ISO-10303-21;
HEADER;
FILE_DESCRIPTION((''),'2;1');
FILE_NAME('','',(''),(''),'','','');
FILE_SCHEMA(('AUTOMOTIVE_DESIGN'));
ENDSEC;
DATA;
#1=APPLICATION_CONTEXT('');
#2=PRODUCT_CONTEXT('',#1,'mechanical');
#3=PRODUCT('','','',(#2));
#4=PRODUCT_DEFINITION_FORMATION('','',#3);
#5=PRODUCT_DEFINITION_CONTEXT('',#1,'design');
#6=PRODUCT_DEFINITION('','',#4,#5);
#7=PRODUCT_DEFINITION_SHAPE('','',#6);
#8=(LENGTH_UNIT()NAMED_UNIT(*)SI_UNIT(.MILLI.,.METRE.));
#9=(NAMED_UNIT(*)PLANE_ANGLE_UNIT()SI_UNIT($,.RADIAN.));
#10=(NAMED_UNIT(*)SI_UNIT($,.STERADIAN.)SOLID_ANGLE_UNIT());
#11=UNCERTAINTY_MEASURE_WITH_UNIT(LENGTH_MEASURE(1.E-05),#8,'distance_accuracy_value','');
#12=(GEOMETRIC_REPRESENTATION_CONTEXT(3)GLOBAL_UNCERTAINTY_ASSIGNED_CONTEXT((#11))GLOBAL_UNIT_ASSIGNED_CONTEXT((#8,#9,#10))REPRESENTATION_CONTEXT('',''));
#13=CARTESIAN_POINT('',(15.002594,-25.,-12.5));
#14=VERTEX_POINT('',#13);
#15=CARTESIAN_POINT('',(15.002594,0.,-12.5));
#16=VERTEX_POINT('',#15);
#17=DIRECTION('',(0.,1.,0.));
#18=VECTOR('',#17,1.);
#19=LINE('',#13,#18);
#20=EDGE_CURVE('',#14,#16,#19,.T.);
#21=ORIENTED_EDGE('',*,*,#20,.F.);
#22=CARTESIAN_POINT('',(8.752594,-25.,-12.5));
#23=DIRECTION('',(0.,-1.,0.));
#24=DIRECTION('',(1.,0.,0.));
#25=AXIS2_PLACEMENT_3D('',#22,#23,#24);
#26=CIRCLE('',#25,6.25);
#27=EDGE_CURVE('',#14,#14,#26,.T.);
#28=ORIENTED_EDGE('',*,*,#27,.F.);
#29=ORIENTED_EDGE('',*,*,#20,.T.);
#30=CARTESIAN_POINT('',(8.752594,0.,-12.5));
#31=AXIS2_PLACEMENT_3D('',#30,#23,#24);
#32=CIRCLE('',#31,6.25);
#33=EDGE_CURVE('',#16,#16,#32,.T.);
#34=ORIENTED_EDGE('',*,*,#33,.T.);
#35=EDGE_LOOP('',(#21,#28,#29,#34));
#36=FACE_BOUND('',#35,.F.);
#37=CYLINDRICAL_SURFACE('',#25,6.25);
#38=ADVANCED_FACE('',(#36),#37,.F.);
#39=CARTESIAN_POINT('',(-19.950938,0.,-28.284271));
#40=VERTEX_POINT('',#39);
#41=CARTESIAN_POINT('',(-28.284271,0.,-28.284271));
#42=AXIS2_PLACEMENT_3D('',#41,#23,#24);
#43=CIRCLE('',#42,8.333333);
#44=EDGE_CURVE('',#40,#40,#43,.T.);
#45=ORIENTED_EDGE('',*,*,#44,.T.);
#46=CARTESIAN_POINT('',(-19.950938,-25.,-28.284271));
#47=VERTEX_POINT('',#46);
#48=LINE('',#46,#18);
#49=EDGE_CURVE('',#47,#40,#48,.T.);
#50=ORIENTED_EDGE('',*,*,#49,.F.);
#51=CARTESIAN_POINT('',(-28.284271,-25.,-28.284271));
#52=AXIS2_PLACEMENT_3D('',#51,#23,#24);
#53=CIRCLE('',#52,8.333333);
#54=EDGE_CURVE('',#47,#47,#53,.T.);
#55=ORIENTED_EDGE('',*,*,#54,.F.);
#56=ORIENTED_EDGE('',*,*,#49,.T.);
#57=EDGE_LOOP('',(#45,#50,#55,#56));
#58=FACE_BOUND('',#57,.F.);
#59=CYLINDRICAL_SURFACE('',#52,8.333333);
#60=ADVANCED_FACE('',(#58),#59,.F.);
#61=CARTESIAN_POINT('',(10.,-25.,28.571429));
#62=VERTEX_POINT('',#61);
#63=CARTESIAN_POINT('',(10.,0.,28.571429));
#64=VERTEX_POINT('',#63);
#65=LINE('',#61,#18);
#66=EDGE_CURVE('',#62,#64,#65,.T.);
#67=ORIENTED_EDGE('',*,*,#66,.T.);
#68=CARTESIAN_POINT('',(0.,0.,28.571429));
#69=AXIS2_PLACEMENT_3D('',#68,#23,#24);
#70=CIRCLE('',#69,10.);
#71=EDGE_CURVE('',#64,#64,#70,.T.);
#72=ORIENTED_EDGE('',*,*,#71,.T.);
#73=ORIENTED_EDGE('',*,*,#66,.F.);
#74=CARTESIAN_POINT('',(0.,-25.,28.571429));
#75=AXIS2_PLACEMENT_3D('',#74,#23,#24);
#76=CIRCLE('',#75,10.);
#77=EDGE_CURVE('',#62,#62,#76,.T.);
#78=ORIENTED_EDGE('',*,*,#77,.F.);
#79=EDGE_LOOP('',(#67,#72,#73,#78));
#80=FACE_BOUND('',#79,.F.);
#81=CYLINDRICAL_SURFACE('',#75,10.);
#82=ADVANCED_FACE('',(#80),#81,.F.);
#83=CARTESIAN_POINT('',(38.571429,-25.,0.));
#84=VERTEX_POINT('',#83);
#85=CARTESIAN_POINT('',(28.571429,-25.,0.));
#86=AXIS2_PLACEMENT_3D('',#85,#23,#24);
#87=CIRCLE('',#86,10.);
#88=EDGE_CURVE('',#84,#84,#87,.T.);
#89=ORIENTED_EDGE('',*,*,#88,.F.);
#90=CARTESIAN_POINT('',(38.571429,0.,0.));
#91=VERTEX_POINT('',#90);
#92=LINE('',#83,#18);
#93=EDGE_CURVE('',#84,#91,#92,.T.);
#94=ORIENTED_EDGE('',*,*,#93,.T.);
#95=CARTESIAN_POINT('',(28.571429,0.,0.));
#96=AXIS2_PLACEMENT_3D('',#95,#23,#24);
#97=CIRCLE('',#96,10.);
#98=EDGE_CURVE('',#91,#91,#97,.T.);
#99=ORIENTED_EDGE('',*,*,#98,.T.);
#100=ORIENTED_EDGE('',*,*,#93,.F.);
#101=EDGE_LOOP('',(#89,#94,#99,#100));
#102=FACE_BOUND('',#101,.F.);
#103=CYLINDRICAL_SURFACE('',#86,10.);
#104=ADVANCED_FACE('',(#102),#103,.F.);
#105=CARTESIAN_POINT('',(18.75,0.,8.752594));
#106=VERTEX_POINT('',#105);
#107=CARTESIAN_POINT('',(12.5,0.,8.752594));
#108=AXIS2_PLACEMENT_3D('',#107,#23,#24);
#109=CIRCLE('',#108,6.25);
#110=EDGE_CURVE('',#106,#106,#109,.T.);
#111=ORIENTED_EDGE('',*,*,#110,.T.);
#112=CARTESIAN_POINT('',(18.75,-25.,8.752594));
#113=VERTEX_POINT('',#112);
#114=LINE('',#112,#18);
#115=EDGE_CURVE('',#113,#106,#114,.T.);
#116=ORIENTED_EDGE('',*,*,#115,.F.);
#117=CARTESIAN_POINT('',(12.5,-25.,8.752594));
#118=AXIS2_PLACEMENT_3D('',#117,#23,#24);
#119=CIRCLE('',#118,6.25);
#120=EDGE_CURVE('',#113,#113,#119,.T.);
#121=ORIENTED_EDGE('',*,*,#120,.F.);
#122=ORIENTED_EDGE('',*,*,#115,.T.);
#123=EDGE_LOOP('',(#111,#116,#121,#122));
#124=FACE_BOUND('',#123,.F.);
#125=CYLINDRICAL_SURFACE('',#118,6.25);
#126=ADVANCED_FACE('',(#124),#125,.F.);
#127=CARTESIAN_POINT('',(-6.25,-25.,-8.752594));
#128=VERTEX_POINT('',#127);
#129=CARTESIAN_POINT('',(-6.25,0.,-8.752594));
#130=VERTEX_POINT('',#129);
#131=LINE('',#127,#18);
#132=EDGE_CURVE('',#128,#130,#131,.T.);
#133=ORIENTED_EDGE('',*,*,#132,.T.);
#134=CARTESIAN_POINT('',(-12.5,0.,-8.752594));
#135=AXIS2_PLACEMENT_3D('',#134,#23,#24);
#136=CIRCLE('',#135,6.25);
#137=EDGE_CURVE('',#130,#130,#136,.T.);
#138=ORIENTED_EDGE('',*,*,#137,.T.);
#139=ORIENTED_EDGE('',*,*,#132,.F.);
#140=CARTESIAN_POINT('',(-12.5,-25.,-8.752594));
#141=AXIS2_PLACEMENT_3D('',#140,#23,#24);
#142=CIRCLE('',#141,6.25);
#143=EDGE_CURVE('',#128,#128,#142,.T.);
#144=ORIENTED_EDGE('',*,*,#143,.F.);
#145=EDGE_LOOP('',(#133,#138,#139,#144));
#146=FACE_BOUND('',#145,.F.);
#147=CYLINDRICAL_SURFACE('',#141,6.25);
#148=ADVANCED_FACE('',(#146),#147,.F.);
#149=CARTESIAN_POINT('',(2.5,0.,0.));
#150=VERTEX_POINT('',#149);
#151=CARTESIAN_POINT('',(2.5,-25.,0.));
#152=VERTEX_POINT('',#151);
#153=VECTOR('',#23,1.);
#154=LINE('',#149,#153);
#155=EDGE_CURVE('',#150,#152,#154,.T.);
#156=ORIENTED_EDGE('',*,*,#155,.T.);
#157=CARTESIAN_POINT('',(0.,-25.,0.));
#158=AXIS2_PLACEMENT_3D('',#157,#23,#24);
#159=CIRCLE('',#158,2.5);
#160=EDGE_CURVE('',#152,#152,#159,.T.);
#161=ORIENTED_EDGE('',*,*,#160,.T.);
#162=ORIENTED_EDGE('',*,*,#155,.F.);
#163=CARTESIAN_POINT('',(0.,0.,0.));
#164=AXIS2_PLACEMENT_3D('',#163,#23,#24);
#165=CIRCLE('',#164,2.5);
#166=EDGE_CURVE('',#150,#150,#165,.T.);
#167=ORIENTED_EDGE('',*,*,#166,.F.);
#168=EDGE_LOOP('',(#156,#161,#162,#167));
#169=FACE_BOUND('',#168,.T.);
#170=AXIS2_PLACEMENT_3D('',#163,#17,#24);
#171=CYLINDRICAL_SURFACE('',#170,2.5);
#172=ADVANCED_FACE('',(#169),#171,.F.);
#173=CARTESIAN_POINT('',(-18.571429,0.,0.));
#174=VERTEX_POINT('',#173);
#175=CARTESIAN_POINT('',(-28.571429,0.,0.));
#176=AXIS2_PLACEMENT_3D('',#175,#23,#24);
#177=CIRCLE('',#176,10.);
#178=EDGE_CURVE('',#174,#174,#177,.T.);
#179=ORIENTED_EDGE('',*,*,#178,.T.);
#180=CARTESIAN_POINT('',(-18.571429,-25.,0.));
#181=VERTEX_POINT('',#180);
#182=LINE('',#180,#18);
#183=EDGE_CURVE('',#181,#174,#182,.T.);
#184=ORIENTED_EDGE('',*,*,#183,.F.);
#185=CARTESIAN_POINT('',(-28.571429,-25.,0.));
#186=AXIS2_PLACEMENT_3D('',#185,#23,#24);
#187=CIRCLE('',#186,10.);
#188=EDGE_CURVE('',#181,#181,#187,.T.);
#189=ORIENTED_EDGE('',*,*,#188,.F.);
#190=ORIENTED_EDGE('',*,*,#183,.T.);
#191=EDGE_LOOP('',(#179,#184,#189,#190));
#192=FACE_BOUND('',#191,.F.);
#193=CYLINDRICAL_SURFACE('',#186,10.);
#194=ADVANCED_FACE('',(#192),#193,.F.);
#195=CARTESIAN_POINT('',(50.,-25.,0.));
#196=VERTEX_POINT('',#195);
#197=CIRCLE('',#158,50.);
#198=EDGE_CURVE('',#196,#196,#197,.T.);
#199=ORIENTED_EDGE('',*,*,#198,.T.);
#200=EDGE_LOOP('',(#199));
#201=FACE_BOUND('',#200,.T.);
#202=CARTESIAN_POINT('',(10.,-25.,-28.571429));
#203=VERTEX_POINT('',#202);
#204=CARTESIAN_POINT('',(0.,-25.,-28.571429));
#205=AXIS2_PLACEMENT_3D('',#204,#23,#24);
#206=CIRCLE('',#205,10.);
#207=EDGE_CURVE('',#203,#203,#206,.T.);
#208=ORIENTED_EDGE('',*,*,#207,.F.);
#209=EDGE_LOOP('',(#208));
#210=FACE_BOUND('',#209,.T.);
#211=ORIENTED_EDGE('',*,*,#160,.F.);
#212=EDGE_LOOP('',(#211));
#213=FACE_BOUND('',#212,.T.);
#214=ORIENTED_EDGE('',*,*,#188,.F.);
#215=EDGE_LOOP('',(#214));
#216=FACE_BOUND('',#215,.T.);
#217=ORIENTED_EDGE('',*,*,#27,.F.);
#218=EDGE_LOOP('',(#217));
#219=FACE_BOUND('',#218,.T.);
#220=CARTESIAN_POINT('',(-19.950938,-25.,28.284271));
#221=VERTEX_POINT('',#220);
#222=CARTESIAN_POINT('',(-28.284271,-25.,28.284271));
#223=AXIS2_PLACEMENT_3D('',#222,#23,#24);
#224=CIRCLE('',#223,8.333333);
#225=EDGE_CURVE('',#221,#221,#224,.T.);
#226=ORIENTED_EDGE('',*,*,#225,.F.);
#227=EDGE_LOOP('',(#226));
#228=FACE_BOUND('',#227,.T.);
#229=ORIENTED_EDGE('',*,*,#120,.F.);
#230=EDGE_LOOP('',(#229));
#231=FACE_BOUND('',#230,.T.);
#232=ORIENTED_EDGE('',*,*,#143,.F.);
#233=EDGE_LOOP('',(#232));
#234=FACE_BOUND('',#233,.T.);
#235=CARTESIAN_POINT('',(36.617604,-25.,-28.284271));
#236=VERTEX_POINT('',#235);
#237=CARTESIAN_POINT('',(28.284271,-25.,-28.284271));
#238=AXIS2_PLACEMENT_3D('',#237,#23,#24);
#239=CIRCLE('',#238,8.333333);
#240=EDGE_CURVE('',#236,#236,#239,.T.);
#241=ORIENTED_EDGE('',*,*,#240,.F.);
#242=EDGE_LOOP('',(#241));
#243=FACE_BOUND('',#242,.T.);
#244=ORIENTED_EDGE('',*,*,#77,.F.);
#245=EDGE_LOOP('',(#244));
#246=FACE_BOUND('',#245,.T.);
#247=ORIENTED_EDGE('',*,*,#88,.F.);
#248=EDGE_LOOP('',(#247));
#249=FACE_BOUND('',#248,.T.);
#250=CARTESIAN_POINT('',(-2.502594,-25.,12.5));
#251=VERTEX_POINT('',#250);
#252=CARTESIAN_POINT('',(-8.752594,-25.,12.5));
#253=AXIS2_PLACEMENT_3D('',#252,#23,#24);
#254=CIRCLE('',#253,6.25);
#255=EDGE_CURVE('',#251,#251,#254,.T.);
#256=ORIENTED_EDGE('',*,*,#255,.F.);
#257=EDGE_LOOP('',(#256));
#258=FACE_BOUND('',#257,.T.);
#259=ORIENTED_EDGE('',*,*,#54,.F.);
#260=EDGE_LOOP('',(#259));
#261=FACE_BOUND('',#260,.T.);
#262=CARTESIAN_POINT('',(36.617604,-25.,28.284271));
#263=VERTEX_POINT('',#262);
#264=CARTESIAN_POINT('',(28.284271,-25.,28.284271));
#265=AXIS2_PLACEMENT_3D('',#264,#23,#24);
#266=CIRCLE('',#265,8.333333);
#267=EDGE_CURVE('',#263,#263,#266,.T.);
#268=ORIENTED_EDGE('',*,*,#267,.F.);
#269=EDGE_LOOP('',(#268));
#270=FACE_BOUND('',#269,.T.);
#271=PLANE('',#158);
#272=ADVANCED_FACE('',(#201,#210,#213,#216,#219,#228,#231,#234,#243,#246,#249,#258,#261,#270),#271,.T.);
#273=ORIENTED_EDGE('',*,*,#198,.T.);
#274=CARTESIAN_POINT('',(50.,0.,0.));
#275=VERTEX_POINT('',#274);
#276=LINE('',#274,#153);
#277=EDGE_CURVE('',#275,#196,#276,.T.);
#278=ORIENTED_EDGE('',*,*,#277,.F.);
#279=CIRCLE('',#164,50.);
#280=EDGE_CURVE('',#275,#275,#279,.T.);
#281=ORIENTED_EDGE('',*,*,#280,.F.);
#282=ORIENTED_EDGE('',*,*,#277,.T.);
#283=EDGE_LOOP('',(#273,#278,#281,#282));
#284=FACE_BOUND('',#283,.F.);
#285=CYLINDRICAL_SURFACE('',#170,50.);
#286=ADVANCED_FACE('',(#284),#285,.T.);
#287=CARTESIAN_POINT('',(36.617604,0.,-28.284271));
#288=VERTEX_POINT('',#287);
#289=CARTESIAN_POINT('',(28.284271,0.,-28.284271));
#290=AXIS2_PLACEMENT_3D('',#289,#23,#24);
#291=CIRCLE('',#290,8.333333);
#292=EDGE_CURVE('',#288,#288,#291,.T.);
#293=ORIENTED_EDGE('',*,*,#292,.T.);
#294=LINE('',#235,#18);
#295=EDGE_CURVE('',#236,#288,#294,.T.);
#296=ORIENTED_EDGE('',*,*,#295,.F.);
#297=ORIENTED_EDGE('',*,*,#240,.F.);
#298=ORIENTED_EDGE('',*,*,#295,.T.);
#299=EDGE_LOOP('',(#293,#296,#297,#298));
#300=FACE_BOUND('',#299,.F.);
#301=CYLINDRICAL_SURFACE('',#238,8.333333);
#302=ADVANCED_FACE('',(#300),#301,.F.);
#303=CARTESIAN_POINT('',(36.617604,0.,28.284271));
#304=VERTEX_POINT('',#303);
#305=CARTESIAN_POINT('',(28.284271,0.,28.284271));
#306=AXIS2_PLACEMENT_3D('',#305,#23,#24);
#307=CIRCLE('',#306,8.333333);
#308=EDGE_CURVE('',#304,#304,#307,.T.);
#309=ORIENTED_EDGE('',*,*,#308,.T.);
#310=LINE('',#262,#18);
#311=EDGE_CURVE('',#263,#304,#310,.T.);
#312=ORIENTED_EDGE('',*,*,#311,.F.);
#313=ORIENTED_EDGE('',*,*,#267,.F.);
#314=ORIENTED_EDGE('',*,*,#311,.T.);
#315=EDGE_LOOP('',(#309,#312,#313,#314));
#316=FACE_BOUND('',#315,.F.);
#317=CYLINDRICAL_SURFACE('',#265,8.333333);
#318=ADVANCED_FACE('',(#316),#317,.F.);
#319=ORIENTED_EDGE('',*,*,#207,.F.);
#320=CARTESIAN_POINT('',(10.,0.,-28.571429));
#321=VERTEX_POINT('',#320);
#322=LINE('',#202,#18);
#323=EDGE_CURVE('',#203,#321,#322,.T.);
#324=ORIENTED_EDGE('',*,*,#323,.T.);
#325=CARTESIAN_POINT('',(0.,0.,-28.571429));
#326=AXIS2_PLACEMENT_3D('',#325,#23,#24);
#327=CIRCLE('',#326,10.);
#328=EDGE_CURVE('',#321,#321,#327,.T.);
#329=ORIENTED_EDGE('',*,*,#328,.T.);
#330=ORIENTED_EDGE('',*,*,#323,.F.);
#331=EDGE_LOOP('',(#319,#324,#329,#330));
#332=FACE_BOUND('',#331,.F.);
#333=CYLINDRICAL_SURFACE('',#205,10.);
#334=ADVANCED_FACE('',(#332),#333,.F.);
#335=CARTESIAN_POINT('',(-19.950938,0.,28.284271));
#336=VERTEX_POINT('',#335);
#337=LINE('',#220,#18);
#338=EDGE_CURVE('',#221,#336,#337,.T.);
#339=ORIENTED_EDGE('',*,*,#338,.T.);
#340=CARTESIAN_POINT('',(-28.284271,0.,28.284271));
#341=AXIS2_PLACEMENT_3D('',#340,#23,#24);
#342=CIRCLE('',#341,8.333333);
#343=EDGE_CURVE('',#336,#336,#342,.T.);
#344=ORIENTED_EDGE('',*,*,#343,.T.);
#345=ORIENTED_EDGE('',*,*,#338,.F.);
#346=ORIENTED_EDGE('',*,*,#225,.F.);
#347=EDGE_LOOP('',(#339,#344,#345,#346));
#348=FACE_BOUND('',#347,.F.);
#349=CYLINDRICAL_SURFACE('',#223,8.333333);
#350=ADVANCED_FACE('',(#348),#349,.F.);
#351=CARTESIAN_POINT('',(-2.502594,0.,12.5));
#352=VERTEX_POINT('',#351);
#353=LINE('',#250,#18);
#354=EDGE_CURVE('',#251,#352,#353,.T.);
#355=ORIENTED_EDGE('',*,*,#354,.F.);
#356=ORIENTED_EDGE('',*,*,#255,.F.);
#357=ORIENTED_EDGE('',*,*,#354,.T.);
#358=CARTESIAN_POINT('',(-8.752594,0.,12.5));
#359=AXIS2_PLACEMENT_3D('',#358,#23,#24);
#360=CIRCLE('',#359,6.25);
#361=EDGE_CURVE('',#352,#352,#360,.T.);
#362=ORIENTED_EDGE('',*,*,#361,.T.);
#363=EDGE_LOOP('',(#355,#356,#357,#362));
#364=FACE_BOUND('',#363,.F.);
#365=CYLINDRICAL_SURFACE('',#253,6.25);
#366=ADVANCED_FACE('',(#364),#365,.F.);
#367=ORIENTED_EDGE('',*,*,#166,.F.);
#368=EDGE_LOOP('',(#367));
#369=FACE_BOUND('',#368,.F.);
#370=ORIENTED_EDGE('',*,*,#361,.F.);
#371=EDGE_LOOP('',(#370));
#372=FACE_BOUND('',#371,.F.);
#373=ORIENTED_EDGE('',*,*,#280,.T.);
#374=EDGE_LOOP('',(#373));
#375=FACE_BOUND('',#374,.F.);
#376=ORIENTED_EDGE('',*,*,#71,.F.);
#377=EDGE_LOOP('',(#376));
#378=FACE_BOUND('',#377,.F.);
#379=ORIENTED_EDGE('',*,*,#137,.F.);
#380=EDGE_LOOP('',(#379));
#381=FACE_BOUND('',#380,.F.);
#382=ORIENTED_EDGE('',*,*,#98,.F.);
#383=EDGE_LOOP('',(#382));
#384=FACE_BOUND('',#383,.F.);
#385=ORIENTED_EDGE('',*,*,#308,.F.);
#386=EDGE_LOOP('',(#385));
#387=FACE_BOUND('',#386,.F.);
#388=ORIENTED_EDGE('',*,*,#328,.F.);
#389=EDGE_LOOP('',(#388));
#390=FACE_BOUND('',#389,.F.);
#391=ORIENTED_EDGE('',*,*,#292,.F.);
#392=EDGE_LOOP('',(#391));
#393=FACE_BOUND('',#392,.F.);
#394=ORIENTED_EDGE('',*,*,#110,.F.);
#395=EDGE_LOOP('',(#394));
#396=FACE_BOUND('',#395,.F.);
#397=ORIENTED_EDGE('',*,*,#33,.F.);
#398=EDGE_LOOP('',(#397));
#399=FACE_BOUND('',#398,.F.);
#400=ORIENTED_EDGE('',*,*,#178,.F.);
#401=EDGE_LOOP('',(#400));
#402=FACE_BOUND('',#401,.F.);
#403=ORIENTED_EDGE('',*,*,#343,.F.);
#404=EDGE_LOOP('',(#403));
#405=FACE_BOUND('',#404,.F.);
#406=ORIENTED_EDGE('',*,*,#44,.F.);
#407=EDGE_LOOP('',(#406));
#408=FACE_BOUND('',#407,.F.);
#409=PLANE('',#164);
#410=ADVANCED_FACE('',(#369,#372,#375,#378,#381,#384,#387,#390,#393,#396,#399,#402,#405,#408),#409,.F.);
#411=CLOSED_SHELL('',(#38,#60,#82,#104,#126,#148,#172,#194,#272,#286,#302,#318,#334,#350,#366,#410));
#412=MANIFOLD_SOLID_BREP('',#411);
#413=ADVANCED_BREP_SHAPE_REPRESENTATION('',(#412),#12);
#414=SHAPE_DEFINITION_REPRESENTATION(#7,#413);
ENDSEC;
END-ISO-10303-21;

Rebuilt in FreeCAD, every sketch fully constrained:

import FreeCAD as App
import Part
import Sketcher

V = App.Vector

doc = App.newDocument("Part")
body = doc.addObject("PartDesign::Body", "Body")

sketch1 = body.newObject("Sketcher::SketchObject", "Sketch")
sketch1.AttachmentSupport = (doc.getObject("XZ_Plane"), [""])
sketch1.MapMode = "FlatFace"
sketch1.addGeometry([
    Part.Circle(V(0, 0, 0), V(0, 0, 1), 50),
    Part.Circle(V(0, 0, 0), V(0, 0, 1), 2.5),
], False)
sketch1.addConstraint([
    Sketcher.Constraint("Coincident", 0, 3, -1, 1),
    Sketcher.Constraint("Coincident", 1, 3, -1, 1),
    Sketcher.Constraint("Diameter", 0, 100.0),
    Sketcher.Constraint("Diameter", 1, 5.0),
])
pad1 = body.newObject("PartDesign::Pad", "Pad")
pad1.Profile = sketch1
pad1.Length = 25

sketch2 = body.newObject("Sketcher::SketchObject", "Sketch001")
sketch2.AttachmentSupport = (doc.getObject("XZ_Plane"), [""])
sketch2.MapMode = "FlatFace"
sketch2.AttachmentOffset = App.Placement(V(0, 0, 25), App.Rotation())
sketch2.addGeometry([
    Part.Circle(V(-28, 28, 0), V(0, 0, 1), 8),
    Part.Circle(V(0, 29, 0), V(0, 0, 1), 10),
    Part.Circle(V(-9, 12, 0), V(0, 0, 1), 6),
    Part.Circle(V(12, 9, 0), V(0, 0, 1), 6),
    Part.Circle(V(28, 28, 0), V(0, 0, 1), 8),
    Part.Circle(V(29, 0, 0), V(0, 0, 1), 10),
    Part.Circle(V(-29, 0, 0), V(0, 0, 1), 10),
    Part.Circle(V(-28, -28, 0), V(0, 0, 1), 8),
    Part.Circle(V(0, -29, 0), V(0, 0, 1), 10),
    Part.Circle(V(-12, -9, 0), V(0, 0, 1), 6),
    Part.Circle(V(28, -28, 0), V(0, 0, 1), 8),
    Part.Circle(V(9, -12, 0), V(0, 0, 1), 6),
], False)
sketch2.addConstraint([
    Sketcher.Constraint("Equal", 2, 3),
    Sketcher.Constraint("Equal", 0, 4),
    Sketcher.Constraint("Equal", 1, 5),
    Sketcher.Constraint("Equal", 5, 6),
    Sketcher.Constraint("Equal", 4, 7),
    Sketcher.Constraint("Equal", 6, 8),
    Sketcher.Constraint("Equal", 3, 9),
    Sketcher.Constraint("Equal", 7, 10),
    Sketcher.Constraint("Equal", 9, 11),
    Sketcher.Constraint("Symmetric", 5, 3, 6, 3, -1, 1),
    Sketcher.Constraint("Symmetric", 4, 3, 7, 3, -1, 1),
    Sketcher.Constraint("Symmetric", 1, 3, 8, 3, -1, 1),
    Sketcher.Constraint("Symmetric", 3, 3, 9, 3, -1, 1),
    Sketcher.Constraint("Symmetric", 0, 3, 10, 3, -1, 1),
    Sketcher.Constraint("Symmetric", 2, 3, 11, 3, -1, 1),
    Sketcher.Constraint("Symmetric", 0, 3, 4, 3, -2),
    Sketcher.Constraint("PointOnObject", 1, 3, -2),
    Sketcher.Constraint("PointOnObject", 5, 3, -1),
    Sketcher.Constraint("Diameter", 1, 20.0),
    Sketcher.Constraint("Diameter", 2, 12.5),
    Sketcher.Constraint("DistanceX", 9, 3, 3, 3, 25.0),
    Sketcher.Constraint("DistanceY", -1, 1, 2, 3, 12.5),
    Sketcher.Constraint("Diameter", 0, 16.666666),
    Sketcher.Constraint("DistanceX", 0, 3, 5, 3, 56.8557),
    Sketcher.Constraint("DistanceY", 7, 3, 1, 3, 56.8557),
    Sketcher.Constraint("DistanceX", 0, 3, -1, 1, 28.284271),
    Sketcher.Constraint("DistanceY", -1, 1, 0, 3, 28.284271),
    Sketcher.Constraint("DistanceY", 9, 3, 3, 3, 17.505188),
    Sketcher.Constraint("DistanceX", 2, 3, -1, 1, 8.752594),
])
pocket1 = body.newObject("PartDesign::Pocket", "Pocket")
pocket1.Profile = sketch2
pocket1.Length = 25

doc.recompute()
